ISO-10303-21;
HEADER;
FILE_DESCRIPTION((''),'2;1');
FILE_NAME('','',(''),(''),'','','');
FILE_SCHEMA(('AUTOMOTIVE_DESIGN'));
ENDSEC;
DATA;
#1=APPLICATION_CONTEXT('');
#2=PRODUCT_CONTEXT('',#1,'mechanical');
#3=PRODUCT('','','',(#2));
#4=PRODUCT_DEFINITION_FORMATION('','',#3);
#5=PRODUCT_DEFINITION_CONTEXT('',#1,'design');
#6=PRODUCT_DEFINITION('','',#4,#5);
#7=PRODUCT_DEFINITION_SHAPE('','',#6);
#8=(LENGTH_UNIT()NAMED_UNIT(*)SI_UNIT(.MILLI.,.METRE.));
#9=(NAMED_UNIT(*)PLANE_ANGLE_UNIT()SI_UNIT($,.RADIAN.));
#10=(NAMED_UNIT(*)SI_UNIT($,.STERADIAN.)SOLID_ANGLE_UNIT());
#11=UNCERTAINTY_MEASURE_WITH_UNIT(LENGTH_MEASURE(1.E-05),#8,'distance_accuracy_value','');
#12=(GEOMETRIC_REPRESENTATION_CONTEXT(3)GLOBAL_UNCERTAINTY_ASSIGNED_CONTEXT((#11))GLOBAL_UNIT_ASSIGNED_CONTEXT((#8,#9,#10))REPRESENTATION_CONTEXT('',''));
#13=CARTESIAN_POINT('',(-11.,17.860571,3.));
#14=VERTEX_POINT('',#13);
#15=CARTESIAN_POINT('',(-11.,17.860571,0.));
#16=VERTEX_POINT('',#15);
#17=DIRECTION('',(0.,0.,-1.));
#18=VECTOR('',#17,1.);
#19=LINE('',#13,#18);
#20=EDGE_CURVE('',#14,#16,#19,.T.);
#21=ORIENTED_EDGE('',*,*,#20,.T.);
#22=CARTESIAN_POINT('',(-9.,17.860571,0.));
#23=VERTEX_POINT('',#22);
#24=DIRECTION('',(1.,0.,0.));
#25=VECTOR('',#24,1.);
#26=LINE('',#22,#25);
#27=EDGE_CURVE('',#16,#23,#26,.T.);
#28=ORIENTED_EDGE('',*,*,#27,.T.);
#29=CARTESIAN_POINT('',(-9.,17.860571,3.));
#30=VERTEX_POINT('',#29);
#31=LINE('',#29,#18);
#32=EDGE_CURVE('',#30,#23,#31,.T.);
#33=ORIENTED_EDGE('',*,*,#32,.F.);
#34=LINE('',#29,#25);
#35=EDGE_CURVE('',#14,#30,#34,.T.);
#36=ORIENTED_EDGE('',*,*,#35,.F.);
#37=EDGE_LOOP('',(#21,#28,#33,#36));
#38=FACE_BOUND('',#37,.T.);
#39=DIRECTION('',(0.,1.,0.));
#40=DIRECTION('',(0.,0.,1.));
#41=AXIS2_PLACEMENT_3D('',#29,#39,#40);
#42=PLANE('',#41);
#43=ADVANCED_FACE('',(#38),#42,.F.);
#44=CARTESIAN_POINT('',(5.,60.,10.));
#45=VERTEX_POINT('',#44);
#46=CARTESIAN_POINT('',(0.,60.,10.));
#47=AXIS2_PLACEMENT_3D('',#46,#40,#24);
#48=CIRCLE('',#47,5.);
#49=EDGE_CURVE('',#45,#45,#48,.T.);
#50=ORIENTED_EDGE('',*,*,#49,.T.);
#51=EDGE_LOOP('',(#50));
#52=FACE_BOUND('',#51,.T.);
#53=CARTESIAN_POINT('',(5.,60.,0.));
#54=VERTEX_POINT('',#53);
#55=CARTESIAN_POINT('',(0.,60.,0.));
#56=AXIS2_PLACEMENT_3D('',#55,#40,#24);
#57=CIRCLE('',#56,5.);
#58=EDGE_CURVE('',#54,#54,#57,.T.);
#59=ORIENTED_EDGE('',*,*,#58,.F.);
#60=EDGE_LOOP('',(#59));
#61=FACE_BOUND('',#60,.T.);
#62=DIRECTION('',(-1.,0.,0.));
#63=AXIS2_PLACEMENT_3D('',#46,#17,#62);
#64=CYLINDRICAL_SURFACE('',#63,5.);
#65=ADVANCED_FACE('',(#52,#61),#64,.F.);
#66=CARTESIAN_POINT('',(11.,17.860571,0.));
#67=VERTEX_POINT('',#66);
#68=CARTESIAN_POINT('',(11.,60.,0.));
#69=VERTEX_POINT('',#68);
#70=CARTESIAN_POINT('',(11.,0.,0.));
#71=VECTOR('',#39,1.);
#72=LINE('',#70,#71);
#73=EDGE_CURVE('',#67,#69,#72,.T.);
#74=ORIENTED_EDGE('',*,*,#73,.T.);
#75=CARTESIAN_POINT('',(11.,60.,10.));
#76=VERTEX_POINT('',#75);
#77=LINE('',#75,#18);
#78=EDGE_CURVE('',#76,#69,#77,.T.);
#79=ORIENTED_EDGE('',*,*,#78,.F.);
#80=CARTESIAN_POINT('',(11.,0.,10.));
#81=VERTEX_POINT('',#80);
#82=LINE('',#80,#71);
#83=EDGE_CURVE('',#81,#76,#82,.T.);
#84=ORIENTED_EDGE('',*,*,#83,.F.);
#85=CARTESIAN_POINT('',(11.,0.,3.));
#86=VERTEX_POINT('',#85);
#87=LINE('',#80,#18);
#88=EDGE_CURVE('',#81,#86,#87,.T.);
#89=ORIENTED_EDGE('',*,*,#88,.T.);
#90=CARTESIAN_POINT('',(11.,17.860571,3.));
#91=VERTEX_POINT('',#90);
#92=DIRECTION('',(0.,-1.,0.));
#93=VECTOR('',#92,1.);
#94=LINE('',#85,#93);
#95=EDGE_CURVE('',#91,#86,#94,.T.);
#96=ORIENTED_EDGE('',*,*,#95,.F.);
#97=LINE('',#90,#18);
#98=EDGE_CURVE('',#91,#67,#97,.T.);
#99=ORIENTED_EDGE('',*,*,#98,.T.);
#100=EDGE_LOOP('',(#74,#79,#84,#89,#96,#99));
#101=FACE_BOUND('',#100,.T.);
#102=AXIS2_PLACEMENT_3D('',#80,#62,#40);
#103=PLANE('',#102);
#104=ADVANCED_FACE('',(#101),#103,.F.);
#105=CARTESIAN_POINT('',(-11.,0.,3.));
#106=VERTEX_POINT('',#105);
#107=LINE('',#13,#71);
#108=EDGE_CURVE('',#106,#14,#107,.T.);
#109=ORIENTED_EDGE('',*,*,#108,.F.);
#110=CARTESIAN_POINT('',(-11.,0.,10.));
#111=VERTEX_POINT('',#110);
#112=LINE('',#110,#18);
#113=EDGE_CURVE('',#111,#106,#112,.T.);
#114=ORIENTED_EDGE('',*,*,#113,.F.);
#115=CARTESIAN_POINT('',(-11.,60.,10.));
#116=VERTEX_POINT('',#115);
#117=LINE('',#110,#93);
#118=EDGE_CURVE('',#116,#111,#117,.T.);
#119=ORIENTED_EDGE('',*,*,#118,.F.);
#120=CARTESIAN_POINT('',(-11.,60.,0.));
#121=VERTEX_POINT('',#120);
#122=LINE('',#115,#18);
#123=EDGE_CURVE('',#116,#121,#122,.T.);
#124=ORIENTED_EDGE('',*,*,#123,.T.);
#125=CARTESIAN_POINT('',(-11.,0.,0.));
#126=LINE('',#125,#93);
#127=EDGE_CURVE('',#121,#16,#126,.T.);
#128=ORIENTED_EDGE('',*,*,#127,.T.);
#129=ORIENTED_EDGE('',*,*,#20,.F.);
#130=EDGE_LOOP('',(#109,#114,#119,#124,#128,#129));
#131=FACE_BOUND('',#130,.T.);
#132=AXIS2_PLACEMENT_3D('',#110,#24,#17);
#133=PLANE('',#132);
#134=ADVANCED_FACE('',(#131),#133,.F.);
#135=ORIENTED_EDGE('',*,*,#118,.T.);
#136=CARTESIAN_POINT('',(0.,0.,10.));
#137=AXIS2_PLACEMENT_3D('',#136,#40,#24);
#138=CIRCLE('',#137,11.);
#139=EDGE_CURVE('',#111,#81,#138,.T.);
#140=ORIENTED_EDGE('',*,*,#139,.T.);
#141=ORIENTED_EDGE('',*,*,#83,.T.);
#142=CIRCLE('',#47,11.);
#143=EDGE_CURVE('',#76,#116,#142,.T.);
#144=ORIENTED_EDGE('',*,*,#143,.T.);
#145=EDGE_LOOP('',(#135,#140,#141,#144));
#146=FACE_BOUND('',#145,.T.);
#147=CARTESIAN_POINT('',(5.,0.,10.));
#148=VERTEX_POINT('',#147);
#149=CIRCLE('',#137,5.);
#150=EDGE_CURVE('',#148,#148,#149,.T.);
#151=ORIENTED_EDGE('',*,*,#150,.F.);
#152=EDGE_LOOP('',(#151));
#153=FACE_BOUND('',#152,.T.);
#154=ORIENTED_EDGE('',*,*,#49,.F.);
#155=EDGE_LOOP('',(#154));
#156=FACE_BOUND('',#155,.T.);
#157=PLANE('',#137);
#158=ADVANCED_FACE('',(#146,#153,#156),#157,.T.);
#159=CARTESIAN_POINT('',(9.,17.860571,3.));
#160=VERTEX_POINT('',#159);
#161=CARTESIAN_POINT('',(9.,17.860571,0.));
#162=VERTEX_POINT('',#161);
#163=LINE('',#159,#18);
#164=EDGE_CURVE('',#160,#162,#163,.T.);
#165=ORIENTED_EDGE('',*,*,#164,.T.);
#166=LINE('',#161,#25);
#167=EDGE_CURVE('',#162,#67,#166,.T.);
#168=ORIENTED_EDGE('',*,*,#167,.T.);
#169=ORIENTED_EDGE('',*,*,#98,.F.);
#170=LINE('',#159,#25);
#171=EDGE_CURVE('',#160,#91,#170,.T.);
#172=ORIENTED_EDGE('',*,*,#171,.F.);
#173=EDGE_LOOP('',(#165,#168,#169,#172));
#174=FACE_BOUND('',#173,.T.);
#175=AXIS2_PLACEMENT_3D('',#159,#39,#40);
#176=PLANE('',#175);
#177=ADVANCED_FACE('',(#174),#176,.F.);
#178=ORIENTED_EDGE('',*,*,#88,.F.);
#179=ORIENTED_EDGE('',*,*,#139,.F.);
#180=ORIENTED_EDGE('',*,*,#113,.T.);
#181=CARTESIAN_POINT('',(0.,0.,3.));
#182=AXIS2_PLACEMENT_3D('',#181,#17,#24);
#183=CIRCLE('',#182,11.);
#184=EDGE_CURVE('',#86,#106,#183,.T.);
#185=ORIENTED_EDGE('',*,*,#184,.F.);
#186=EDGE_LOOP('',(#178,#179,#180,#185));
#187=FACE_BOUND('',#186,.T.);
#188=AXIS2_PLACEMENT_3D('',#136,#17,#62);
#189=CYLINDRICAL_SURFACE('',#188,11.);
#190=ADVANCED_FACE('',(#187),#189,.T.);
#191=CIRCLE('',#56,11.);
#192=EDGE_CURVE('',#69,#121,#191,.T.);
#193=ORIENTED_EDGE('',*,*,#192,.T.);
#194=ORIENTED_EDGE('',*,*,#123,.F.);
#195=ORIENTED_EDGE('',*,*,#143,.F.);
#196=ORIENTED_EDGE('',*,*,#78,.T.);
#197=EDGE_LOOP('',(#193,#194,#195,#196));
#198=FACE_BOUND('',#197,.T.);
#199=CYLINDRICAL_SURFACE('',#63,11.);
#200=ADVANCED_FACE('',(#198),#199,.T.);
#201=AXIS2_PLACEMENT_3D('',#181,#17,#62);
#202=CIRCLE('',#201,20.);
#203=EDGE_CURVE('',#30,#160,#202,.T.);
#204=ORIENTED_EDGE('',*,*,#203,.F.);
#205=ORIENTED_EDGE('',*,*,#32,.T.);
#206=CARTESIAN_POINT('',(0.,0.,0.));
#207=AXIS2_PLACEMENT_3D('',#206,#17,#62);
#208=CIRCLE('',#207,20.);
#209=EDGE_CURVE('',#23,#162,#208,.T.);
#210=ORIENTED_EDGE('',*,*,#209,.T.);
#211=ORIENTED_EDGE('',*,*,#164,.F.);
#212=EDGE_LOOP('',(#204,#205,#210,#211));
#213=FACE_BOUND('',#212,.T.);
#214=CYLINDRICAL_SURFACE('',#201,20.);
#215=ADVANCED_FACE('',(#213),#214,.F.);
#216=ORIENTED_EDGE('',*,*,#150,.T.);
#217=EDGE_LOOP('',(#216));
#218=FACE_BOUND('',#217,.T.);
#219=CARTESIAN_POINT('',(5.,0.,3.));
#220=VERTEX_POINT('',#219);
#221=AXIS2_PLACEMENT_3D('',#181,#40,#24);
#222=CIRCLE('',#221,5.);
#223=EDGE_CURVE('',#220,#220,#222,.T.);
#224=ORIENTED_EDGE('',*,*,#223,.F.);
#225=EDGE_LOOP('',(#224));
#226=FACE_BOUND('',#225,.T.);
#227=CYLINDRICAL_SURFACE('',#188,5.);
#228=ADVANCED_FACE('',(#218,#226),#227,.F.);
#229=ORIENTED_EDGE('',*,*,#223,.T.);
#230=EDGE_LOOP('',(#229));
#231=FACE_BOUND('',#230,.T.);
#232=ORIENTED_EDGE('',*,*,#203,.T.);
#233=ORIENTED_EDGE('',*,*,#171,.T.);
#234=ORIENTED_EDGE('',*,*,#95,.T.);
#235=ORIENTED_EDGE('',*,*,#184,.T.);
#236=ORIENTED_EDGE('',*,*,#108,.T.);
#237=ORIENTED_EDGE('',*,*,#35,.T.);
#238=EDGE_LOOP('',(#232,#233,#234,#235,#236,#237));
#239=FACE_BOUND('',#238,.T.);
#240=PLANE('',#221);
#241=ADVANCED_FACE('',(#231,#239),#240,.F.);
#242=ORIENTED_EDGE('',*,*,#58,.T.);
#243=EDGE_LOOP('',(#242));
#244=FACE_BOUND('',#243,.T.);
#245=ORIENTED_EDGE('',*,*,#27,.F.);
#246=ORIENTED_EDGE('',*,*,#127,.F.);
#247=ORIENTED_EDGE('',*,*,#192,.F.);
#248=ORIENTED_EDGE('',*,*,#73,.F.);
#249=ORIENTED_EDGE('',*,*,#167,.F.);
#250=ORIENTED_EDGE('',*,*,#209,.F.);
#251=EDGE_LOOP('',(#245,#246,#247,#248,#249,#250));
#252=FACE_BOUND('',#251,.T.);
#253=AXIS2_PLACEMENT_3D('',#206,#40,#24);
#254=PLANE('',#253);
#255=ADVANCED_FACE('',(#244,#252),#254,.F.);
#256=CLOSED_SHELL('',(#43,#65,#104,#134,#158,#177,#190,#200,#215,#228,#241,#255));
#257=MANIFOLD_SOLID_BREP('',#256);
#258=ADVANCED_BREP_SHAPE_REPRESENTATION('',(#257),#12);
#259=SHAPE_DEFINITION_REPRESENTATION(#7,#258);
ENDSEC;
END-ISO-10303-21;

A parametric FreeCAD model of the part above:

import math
import FreeCAD as App
import Part
import Sketcher

V = App.Vector

doc = App.newDocument("Part")
params = doc.addObject("Spreadsheet::Sheet", "Params")
for row, (alias, value) in enumerate([
    ("sketch1_diameter", "10 mm"),
    ("sketch1_radius", "11 mm"),
    ("sketch1_height", "60 mm"),
    ("pad1_length", "10 mm"),
    ("sketch2_radius", "11 mm"),
    ("sketch2_radius2", "20 mm"),
    ("sketch2_width", "2 mm"),
    ("pocket1_length", "3 mm"),
], start=1):
    params.set(f"A{row}", alias)
    params.set(f"B{row}", "=" + value)
    params.setAlias(f"B{row}", alias)

body = doc.addObject("PartDesign::Body", "Body")

# Sketch on XY plane
sketch1 = body.newObject("Sketcher::SketchObject", "Sketch")
sketch1.AttachmentSupport = (doc.getObject("XY_Plane"), [""])
sketch1.MapMode = "FlatFace"
sketch1.addGeometry(Part.LineSegment(V(-11, 60, 0), V(-11, 0, 0)), False)
sketch1.addGeometry(Part.ArcOfCircle(Part.Circle(V(0, 0, 0), V(0, 0, 1), 11), math.radians(180), math.radians(360)), False)
sketch1.addGeometry(Part.LineSegment(V(11, 0, 0), V(11, 60, 0)), False)
sketch1.addGeometry(Part.ArcOfCircle(Part.Circle(V(0, 60, 0), V(0, 0, 1), 11), math.radians(0), math.radians(180)), False)
sketch1.addGeometry(Part.Circle(V(0, 60, 0), V(0, 0, 1), 5), False)
sketch1.addGeometry(Part.Circle(V(0, 0, 0), V(0, 0, 1), 5), False)
sketch1.addConstraint(Sketcher.Constraint("Tangent", 0, 2, 1, 1))
sketch1.addConstraint(Sketcher.Constraint("Tangent", 1, 2, 2, 1))
sketch1.addConstraint(Sketcher.Constraint("Tangent", 2, 2, 3, 1))
sketch1.addConstraint(Sketcher.Constraint("Tangent", 3, 2, 0, 1))
sketch1.addConstraint(Sketcher.Constraint("Vertical", 0))
sketch1.addConstraint(Sketcher.Constraint("Vertical", 2))
sketch1.addConstraint(Sketcher.Constraint("Coincident", 1, 3, -1, 1))
sketch1.addConstraint(Sketcher.Constraint("Coincident", 5, 3, -1, 1))
sketch1.addConstraint(Sketcher.Constraint("Coincident", 4, 3, 3, 3))
sketch1.addConstraint(Sketcher.Constraint("Equal", 4, 5))
sketch1.addConstraint(Sketcher.Constraint("Diameter", 4, 10.0))
sketch1.addConstraint(Sketcher.Constraint("Radius", 1, 11.0))
sketch1.addConstraint(Sketcher.Constraint("DistanceY", 0, 2, 0, 1, 60.0))
sketch1.setExpression("Constraints[10]", "Params.sketch1_diameter")
sketch1.setExpression("Constraints[11]", "Params.sketch1_radius")
sketch1.setExpression("Constraints[12]", "Params.sketch1_height")
pad1 = body.newObject("PartDesign::Pad", "Pad")
pad1.Profile = sketch1
pad1.setExpression("Length", "Params.pad1_length")

# Sketch on XY plane
sketch2 = body.newObject("Sketcher::SketchObject", "Sketch001")
sketch2.AttachmentSupport = (doc.getObject("XY_Plane"), [""])
sketch2.MapMode = "FlatFace"
sketch2.addGeometry(Part.LineSegment(V(9, 17.860571, 0), V(11, 17.860571, 0)), False)
sketch2.addGeometry(Part.LineSegment(V(11, 17.860571, 0), V(11, 0, 0)), False)
sketch2.addGeometry(Part.ArcOfCircle(Part.Circle(V(0, 0, 0), V(0, 0, 1), 11), math.radians(180), math.radians(360)), False)
sketch2.addGeometry(Part.LineSegment(V(-11, 0, 0), V(-11, 17.860571, 0)), False)
sketch2.addGeometry(Part.LineSegment(V(-11, 17.860571, 0), V(-9, 17.860571, 0)), False)
sketch2.addGeometry(Part.ArcOfCircle(Part.Circle(V(0, 0, 0), V(0, 0, 1), 20), math.radians(63.256316), math.radians(116.743684)), False)
sketch2.addConstraint(Sketcher.Constraint("Coincident", 0, 2, 1, 1))
sketch2.addConstraint(Sketcher.Constraint("Tangent", 1, 2, 2, 2))
sketch2.addConstraint(Sketcher.Constraint("Tangent", 2, 1, 3, 1))
sketch2.addConstraint(Sketcher.Constraint("Coincident", 3, 2, 4, 1))
sketch2.addConstraint(Sketcher.Constraint("Coincident", 4, 2, 5, 2))
sketch2.addConstraint(Sketcher.Constraint("Coincident", 5, 1, 0, 1))
sketch2.addConstraint(Sketcher.Constraint("Horizontal", 0))
sketch2.addConstraint(Sketcher.Constraint("Vertical", 1))
sketch2.addConstraint(Sketcher.Constraint("Vertical", 3))
sketch2.addConstraint(Sketcher.Constraint("Horizontal", 4))
sketch2.addConstraint(Sketcher.Constraint("Coincident", 2, 3, -1, 1))
sketch2.addConstraint(Sketcher.Constraint("Coincident", 5, 3, -1, 1))
sketch2.addConstraint(Sketcher.Constraint("Horizontal", 0, 2, 3, 2))
sketch2.addConstraint(Sketcher.Constraint("Radius", 2, 11.0))
sketch2.addConstraint(Sketcher.Constraint("Radius", 5, 20.0))
sketch2.addConstraint(Sketcher.Constraint("DistanceX", 0, 1, 0, 2, 2.0))
sketch2.setExpression("Constraints[13]", "Params.sketch2_radius")
sketch2.setExpression("Constraints[14]", "Params.sketch2_radius2")
sketch2.setExpression("Constraints[15]", "Params.sketch2_width")
pocket1 = body.newObject("PartDesign::Pocket", "Pocket")
pocket1.Profile = sketch2
pocket1.setExpression("Length", "Params.pocket1_length")
pocket1.Reversed = True

doc.recompute()
